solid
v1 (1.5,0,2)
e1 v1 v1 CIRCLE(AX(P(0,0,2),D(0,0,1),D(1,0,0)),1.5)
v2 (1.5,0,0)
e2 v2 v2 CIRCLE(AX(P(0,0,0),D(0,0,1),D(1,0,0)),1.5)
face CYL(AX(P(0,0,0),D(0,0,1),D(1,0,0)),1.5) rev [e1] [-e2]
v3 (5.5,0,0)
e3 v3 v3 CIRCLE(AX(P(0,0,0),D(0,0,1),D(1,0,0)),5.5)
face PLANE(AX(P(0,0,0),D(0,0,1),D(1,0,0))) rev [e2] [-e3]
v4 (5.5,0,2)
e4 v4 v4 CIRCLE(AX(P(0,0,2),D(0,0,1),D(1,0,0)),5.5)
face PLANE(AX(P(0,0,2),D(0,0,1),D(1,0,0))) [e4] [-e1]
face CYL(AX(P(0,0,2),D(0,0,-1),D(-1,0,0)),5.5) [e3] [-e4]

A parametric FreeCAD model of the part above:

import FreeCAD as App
import Part
import Sketcher
from FreeCAD import Vector
Q = App.Units.Quantity

doc = App.newDocument("Part")
body = doc.addObject("PartDesign::Body", "Body")

# Sketch on XY plane
sketch1 = body.newObject("Sketcher::SketchObject", "Sketch")
sketch1.AttachmentSupport = (doc.getObject("XY_Plane"), [""])
sketch1.MapMode = "FlatFace"
sketch1.addGeometry(Part.Circle(Vector(0, 0, 0), Vector(0, 0, 1), 6), False)
sketch1.addConstraint([
    Sketcher.Constraint("Coincident", 0, 3, -1, 1),
    Sketcher.Constraint("Diameter", 0, Q("11 mm")),
])
pad1 = body.newObject("PartDesign::Pad", "Pad")
pad1.Profile = sketch1
pad1.Length = 2

# Sketch on XY plane
sketch2 = body.newObject("Sketcher::SketchObject", "Sketch001")
sketch2.AttachmentSupport = (doc.getObject("XY_Plane"), [""])
sketch2.MapMode = "FlatFace"
sketch2.AttachmentOffset = App.Placement(Vector(0, 0, 2), App.Rotation())
sketch2.addGeometry(Part.Circle(Vector(0, 0, 0), Vector(0, 0, 1), 1.5), False)
sketch2.addConstraint([
    Sketcher.Constraint("Coincident", 0, 3, -1, 1),
    Sketcher.Constraint("Diameter", 0, Q("3 mm")),
])
pocket1 = body.newObject("PartDesign::Pocket", "Pocket")
pocket1.Profile = sketch2
pocket1.Type = "ThroughAll"

doc.recompute()
